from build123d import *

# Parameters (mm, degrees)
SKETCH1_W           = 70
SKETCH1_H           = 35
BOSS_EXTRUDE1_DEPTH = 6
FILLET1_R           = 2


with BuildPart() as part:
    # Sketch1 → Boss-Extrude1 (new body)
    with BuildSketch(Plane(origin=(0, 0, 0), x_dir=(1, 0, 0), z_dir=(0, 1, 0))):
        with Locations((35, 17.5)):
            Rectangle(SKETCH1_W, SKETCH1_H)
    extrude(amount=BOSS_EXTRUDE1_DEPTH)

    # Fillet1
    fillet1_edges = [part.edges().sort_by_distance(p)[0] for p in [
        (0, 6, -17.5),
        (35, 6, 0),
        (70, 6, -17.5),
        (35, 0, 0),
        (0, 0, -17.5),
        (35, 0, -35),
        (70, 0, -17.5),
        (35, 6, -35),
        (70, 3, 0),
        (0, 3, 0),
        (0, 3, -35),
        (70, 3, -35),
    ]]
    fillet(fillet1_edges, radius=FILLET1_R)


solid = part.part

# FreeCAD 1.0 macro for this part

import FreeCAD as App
import Part
import Sketcher
from FreeCAD import Vector


def add_polygon(sketch, points):
    """Adds a closed chain of lines whose ends are joined by coincident constraints."""
    first, n = sketch.GeometryCount, len(points)
    for a, b in zip(points, points[1:] + points[:1]):
        sketch.addGeometry(Part.LineSegment(App.Vector(*a, 0), App.Vector(*b, 0)), False)
    for i in range(n):
        sketch.addConstraint(Sketcher.Constraint("Coincident", first + i, 2, first + (i + 1) % n, 1))

doc = App.newDocument("Part")
body = doc.addObject("PartDesign::Body", "Body")

sketch1 = body.newObject("Sketcher::SketchObject", "Sketch")
sketch1.AttachmentSupport = (doc.getObject("XZ_Plane"), [""])
sketch1.MapMode = "FlatFace"
add_polygon(sketch1, [(0, -35), (0, 0), (70, 0), (70, -35)])
sketch1.addConstraint(Sketcher.Constraint("Vertical", 0))
sketch1.addConstraint(Sketcher.Constraint("Horizontal", 1))
sketch1.addConstraint(Sketcher.Constraint("Vertical", 2))
sketch1.addConstraint(Sketcher.Constraint("Horizontal", 3))
sketch1.addConstraint(Sketcher.Constraint("Coincident", 0, 2, -1, 1))
sketch1.addConstraint(Sketcher.Constraint("DistanceX", 1, 1, 1, 2, 70.0))
sketch1.addConstraint(Sketcher.Constraint("DistanceY", 0, 1, 0, 2, 35.0))
pad1 = body.newObject("PartDesign::Pad", "Pad")
pad1.Profile = sketch1
pad1.Length = 6
pad1.Reversed = True
doc.recompute()

fillet = body.newObject("PartDesign::Fillet", "Fillet")
fillet.Base = (pad1, ["Edge1"])
fillet.UseAllEdges = True
fillet.Radius = 2

doc.recompute()
